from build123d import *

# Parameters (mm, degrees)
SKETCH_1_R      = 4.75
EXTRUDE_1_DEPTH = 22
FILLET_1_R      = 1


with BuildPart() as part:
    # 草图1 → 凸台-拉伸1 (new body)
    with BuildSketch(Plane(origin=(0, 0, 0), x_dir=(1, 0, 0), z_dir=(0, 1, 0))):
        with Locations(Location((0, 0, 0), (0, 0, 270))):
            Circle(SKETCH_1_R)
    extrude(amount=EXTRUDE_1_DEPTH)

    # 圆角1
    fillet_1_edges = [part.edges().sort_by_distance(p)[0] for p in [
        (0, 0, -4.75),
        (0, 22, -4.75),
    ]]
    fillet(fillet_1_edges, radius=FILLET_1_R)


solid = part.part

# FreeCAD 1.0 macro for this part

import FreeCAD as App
import Part
import Sketcher
Q = App.Units.Quantity


def edges_at(feature, points):
    """Names of the edges that pass closest to the given points."""
    edges = feature.Shape.Edges
    near = lambda p: min(range(len(edges)), key=lambda i: edges[i].distToShape(Part.Vertex(*p))[0])
    return sorted({f"Edge{near(p) + 1}" for p in points})

doc = App.newDocument("Part")
body = doc.addObject("PartDesign::Body", "Body")

sketch1 = body.newObject("Sketcher::SketchObject", "Sketch")
sketch1.AttachmentSupport = (doc.getObject("XZ_Plane"), [""])
sketch1.MapMode = "FlatFace"
sketch1.addGeometry(Part.Circle(App.Vector(0, 0, 0), App.Vector(0, 0, 1), 4.8), False)
sketch1.addConstraint(Sketcher.Constraint("Coincident", 0, 3, -1, 1))
sketch1.addConstraint(Sketcher.Constraint("Diameter", 0, Q("9.5 mm")))
pad1 = body.newObject("PartDesign::Pad", "Pad")
pad1.Profile = sketch1
pad1.Length = 22
pad1.Reversed = True
doc.recompute()

fillet = body.newObject("PartDesign::Fillet", "Fillet")
fillet.Base = (pad1, edges_at(pad1, [(0, 0, -4.75), (0, 22, -4.75)]))
fillet.Radius = 1

doc.recompute()
